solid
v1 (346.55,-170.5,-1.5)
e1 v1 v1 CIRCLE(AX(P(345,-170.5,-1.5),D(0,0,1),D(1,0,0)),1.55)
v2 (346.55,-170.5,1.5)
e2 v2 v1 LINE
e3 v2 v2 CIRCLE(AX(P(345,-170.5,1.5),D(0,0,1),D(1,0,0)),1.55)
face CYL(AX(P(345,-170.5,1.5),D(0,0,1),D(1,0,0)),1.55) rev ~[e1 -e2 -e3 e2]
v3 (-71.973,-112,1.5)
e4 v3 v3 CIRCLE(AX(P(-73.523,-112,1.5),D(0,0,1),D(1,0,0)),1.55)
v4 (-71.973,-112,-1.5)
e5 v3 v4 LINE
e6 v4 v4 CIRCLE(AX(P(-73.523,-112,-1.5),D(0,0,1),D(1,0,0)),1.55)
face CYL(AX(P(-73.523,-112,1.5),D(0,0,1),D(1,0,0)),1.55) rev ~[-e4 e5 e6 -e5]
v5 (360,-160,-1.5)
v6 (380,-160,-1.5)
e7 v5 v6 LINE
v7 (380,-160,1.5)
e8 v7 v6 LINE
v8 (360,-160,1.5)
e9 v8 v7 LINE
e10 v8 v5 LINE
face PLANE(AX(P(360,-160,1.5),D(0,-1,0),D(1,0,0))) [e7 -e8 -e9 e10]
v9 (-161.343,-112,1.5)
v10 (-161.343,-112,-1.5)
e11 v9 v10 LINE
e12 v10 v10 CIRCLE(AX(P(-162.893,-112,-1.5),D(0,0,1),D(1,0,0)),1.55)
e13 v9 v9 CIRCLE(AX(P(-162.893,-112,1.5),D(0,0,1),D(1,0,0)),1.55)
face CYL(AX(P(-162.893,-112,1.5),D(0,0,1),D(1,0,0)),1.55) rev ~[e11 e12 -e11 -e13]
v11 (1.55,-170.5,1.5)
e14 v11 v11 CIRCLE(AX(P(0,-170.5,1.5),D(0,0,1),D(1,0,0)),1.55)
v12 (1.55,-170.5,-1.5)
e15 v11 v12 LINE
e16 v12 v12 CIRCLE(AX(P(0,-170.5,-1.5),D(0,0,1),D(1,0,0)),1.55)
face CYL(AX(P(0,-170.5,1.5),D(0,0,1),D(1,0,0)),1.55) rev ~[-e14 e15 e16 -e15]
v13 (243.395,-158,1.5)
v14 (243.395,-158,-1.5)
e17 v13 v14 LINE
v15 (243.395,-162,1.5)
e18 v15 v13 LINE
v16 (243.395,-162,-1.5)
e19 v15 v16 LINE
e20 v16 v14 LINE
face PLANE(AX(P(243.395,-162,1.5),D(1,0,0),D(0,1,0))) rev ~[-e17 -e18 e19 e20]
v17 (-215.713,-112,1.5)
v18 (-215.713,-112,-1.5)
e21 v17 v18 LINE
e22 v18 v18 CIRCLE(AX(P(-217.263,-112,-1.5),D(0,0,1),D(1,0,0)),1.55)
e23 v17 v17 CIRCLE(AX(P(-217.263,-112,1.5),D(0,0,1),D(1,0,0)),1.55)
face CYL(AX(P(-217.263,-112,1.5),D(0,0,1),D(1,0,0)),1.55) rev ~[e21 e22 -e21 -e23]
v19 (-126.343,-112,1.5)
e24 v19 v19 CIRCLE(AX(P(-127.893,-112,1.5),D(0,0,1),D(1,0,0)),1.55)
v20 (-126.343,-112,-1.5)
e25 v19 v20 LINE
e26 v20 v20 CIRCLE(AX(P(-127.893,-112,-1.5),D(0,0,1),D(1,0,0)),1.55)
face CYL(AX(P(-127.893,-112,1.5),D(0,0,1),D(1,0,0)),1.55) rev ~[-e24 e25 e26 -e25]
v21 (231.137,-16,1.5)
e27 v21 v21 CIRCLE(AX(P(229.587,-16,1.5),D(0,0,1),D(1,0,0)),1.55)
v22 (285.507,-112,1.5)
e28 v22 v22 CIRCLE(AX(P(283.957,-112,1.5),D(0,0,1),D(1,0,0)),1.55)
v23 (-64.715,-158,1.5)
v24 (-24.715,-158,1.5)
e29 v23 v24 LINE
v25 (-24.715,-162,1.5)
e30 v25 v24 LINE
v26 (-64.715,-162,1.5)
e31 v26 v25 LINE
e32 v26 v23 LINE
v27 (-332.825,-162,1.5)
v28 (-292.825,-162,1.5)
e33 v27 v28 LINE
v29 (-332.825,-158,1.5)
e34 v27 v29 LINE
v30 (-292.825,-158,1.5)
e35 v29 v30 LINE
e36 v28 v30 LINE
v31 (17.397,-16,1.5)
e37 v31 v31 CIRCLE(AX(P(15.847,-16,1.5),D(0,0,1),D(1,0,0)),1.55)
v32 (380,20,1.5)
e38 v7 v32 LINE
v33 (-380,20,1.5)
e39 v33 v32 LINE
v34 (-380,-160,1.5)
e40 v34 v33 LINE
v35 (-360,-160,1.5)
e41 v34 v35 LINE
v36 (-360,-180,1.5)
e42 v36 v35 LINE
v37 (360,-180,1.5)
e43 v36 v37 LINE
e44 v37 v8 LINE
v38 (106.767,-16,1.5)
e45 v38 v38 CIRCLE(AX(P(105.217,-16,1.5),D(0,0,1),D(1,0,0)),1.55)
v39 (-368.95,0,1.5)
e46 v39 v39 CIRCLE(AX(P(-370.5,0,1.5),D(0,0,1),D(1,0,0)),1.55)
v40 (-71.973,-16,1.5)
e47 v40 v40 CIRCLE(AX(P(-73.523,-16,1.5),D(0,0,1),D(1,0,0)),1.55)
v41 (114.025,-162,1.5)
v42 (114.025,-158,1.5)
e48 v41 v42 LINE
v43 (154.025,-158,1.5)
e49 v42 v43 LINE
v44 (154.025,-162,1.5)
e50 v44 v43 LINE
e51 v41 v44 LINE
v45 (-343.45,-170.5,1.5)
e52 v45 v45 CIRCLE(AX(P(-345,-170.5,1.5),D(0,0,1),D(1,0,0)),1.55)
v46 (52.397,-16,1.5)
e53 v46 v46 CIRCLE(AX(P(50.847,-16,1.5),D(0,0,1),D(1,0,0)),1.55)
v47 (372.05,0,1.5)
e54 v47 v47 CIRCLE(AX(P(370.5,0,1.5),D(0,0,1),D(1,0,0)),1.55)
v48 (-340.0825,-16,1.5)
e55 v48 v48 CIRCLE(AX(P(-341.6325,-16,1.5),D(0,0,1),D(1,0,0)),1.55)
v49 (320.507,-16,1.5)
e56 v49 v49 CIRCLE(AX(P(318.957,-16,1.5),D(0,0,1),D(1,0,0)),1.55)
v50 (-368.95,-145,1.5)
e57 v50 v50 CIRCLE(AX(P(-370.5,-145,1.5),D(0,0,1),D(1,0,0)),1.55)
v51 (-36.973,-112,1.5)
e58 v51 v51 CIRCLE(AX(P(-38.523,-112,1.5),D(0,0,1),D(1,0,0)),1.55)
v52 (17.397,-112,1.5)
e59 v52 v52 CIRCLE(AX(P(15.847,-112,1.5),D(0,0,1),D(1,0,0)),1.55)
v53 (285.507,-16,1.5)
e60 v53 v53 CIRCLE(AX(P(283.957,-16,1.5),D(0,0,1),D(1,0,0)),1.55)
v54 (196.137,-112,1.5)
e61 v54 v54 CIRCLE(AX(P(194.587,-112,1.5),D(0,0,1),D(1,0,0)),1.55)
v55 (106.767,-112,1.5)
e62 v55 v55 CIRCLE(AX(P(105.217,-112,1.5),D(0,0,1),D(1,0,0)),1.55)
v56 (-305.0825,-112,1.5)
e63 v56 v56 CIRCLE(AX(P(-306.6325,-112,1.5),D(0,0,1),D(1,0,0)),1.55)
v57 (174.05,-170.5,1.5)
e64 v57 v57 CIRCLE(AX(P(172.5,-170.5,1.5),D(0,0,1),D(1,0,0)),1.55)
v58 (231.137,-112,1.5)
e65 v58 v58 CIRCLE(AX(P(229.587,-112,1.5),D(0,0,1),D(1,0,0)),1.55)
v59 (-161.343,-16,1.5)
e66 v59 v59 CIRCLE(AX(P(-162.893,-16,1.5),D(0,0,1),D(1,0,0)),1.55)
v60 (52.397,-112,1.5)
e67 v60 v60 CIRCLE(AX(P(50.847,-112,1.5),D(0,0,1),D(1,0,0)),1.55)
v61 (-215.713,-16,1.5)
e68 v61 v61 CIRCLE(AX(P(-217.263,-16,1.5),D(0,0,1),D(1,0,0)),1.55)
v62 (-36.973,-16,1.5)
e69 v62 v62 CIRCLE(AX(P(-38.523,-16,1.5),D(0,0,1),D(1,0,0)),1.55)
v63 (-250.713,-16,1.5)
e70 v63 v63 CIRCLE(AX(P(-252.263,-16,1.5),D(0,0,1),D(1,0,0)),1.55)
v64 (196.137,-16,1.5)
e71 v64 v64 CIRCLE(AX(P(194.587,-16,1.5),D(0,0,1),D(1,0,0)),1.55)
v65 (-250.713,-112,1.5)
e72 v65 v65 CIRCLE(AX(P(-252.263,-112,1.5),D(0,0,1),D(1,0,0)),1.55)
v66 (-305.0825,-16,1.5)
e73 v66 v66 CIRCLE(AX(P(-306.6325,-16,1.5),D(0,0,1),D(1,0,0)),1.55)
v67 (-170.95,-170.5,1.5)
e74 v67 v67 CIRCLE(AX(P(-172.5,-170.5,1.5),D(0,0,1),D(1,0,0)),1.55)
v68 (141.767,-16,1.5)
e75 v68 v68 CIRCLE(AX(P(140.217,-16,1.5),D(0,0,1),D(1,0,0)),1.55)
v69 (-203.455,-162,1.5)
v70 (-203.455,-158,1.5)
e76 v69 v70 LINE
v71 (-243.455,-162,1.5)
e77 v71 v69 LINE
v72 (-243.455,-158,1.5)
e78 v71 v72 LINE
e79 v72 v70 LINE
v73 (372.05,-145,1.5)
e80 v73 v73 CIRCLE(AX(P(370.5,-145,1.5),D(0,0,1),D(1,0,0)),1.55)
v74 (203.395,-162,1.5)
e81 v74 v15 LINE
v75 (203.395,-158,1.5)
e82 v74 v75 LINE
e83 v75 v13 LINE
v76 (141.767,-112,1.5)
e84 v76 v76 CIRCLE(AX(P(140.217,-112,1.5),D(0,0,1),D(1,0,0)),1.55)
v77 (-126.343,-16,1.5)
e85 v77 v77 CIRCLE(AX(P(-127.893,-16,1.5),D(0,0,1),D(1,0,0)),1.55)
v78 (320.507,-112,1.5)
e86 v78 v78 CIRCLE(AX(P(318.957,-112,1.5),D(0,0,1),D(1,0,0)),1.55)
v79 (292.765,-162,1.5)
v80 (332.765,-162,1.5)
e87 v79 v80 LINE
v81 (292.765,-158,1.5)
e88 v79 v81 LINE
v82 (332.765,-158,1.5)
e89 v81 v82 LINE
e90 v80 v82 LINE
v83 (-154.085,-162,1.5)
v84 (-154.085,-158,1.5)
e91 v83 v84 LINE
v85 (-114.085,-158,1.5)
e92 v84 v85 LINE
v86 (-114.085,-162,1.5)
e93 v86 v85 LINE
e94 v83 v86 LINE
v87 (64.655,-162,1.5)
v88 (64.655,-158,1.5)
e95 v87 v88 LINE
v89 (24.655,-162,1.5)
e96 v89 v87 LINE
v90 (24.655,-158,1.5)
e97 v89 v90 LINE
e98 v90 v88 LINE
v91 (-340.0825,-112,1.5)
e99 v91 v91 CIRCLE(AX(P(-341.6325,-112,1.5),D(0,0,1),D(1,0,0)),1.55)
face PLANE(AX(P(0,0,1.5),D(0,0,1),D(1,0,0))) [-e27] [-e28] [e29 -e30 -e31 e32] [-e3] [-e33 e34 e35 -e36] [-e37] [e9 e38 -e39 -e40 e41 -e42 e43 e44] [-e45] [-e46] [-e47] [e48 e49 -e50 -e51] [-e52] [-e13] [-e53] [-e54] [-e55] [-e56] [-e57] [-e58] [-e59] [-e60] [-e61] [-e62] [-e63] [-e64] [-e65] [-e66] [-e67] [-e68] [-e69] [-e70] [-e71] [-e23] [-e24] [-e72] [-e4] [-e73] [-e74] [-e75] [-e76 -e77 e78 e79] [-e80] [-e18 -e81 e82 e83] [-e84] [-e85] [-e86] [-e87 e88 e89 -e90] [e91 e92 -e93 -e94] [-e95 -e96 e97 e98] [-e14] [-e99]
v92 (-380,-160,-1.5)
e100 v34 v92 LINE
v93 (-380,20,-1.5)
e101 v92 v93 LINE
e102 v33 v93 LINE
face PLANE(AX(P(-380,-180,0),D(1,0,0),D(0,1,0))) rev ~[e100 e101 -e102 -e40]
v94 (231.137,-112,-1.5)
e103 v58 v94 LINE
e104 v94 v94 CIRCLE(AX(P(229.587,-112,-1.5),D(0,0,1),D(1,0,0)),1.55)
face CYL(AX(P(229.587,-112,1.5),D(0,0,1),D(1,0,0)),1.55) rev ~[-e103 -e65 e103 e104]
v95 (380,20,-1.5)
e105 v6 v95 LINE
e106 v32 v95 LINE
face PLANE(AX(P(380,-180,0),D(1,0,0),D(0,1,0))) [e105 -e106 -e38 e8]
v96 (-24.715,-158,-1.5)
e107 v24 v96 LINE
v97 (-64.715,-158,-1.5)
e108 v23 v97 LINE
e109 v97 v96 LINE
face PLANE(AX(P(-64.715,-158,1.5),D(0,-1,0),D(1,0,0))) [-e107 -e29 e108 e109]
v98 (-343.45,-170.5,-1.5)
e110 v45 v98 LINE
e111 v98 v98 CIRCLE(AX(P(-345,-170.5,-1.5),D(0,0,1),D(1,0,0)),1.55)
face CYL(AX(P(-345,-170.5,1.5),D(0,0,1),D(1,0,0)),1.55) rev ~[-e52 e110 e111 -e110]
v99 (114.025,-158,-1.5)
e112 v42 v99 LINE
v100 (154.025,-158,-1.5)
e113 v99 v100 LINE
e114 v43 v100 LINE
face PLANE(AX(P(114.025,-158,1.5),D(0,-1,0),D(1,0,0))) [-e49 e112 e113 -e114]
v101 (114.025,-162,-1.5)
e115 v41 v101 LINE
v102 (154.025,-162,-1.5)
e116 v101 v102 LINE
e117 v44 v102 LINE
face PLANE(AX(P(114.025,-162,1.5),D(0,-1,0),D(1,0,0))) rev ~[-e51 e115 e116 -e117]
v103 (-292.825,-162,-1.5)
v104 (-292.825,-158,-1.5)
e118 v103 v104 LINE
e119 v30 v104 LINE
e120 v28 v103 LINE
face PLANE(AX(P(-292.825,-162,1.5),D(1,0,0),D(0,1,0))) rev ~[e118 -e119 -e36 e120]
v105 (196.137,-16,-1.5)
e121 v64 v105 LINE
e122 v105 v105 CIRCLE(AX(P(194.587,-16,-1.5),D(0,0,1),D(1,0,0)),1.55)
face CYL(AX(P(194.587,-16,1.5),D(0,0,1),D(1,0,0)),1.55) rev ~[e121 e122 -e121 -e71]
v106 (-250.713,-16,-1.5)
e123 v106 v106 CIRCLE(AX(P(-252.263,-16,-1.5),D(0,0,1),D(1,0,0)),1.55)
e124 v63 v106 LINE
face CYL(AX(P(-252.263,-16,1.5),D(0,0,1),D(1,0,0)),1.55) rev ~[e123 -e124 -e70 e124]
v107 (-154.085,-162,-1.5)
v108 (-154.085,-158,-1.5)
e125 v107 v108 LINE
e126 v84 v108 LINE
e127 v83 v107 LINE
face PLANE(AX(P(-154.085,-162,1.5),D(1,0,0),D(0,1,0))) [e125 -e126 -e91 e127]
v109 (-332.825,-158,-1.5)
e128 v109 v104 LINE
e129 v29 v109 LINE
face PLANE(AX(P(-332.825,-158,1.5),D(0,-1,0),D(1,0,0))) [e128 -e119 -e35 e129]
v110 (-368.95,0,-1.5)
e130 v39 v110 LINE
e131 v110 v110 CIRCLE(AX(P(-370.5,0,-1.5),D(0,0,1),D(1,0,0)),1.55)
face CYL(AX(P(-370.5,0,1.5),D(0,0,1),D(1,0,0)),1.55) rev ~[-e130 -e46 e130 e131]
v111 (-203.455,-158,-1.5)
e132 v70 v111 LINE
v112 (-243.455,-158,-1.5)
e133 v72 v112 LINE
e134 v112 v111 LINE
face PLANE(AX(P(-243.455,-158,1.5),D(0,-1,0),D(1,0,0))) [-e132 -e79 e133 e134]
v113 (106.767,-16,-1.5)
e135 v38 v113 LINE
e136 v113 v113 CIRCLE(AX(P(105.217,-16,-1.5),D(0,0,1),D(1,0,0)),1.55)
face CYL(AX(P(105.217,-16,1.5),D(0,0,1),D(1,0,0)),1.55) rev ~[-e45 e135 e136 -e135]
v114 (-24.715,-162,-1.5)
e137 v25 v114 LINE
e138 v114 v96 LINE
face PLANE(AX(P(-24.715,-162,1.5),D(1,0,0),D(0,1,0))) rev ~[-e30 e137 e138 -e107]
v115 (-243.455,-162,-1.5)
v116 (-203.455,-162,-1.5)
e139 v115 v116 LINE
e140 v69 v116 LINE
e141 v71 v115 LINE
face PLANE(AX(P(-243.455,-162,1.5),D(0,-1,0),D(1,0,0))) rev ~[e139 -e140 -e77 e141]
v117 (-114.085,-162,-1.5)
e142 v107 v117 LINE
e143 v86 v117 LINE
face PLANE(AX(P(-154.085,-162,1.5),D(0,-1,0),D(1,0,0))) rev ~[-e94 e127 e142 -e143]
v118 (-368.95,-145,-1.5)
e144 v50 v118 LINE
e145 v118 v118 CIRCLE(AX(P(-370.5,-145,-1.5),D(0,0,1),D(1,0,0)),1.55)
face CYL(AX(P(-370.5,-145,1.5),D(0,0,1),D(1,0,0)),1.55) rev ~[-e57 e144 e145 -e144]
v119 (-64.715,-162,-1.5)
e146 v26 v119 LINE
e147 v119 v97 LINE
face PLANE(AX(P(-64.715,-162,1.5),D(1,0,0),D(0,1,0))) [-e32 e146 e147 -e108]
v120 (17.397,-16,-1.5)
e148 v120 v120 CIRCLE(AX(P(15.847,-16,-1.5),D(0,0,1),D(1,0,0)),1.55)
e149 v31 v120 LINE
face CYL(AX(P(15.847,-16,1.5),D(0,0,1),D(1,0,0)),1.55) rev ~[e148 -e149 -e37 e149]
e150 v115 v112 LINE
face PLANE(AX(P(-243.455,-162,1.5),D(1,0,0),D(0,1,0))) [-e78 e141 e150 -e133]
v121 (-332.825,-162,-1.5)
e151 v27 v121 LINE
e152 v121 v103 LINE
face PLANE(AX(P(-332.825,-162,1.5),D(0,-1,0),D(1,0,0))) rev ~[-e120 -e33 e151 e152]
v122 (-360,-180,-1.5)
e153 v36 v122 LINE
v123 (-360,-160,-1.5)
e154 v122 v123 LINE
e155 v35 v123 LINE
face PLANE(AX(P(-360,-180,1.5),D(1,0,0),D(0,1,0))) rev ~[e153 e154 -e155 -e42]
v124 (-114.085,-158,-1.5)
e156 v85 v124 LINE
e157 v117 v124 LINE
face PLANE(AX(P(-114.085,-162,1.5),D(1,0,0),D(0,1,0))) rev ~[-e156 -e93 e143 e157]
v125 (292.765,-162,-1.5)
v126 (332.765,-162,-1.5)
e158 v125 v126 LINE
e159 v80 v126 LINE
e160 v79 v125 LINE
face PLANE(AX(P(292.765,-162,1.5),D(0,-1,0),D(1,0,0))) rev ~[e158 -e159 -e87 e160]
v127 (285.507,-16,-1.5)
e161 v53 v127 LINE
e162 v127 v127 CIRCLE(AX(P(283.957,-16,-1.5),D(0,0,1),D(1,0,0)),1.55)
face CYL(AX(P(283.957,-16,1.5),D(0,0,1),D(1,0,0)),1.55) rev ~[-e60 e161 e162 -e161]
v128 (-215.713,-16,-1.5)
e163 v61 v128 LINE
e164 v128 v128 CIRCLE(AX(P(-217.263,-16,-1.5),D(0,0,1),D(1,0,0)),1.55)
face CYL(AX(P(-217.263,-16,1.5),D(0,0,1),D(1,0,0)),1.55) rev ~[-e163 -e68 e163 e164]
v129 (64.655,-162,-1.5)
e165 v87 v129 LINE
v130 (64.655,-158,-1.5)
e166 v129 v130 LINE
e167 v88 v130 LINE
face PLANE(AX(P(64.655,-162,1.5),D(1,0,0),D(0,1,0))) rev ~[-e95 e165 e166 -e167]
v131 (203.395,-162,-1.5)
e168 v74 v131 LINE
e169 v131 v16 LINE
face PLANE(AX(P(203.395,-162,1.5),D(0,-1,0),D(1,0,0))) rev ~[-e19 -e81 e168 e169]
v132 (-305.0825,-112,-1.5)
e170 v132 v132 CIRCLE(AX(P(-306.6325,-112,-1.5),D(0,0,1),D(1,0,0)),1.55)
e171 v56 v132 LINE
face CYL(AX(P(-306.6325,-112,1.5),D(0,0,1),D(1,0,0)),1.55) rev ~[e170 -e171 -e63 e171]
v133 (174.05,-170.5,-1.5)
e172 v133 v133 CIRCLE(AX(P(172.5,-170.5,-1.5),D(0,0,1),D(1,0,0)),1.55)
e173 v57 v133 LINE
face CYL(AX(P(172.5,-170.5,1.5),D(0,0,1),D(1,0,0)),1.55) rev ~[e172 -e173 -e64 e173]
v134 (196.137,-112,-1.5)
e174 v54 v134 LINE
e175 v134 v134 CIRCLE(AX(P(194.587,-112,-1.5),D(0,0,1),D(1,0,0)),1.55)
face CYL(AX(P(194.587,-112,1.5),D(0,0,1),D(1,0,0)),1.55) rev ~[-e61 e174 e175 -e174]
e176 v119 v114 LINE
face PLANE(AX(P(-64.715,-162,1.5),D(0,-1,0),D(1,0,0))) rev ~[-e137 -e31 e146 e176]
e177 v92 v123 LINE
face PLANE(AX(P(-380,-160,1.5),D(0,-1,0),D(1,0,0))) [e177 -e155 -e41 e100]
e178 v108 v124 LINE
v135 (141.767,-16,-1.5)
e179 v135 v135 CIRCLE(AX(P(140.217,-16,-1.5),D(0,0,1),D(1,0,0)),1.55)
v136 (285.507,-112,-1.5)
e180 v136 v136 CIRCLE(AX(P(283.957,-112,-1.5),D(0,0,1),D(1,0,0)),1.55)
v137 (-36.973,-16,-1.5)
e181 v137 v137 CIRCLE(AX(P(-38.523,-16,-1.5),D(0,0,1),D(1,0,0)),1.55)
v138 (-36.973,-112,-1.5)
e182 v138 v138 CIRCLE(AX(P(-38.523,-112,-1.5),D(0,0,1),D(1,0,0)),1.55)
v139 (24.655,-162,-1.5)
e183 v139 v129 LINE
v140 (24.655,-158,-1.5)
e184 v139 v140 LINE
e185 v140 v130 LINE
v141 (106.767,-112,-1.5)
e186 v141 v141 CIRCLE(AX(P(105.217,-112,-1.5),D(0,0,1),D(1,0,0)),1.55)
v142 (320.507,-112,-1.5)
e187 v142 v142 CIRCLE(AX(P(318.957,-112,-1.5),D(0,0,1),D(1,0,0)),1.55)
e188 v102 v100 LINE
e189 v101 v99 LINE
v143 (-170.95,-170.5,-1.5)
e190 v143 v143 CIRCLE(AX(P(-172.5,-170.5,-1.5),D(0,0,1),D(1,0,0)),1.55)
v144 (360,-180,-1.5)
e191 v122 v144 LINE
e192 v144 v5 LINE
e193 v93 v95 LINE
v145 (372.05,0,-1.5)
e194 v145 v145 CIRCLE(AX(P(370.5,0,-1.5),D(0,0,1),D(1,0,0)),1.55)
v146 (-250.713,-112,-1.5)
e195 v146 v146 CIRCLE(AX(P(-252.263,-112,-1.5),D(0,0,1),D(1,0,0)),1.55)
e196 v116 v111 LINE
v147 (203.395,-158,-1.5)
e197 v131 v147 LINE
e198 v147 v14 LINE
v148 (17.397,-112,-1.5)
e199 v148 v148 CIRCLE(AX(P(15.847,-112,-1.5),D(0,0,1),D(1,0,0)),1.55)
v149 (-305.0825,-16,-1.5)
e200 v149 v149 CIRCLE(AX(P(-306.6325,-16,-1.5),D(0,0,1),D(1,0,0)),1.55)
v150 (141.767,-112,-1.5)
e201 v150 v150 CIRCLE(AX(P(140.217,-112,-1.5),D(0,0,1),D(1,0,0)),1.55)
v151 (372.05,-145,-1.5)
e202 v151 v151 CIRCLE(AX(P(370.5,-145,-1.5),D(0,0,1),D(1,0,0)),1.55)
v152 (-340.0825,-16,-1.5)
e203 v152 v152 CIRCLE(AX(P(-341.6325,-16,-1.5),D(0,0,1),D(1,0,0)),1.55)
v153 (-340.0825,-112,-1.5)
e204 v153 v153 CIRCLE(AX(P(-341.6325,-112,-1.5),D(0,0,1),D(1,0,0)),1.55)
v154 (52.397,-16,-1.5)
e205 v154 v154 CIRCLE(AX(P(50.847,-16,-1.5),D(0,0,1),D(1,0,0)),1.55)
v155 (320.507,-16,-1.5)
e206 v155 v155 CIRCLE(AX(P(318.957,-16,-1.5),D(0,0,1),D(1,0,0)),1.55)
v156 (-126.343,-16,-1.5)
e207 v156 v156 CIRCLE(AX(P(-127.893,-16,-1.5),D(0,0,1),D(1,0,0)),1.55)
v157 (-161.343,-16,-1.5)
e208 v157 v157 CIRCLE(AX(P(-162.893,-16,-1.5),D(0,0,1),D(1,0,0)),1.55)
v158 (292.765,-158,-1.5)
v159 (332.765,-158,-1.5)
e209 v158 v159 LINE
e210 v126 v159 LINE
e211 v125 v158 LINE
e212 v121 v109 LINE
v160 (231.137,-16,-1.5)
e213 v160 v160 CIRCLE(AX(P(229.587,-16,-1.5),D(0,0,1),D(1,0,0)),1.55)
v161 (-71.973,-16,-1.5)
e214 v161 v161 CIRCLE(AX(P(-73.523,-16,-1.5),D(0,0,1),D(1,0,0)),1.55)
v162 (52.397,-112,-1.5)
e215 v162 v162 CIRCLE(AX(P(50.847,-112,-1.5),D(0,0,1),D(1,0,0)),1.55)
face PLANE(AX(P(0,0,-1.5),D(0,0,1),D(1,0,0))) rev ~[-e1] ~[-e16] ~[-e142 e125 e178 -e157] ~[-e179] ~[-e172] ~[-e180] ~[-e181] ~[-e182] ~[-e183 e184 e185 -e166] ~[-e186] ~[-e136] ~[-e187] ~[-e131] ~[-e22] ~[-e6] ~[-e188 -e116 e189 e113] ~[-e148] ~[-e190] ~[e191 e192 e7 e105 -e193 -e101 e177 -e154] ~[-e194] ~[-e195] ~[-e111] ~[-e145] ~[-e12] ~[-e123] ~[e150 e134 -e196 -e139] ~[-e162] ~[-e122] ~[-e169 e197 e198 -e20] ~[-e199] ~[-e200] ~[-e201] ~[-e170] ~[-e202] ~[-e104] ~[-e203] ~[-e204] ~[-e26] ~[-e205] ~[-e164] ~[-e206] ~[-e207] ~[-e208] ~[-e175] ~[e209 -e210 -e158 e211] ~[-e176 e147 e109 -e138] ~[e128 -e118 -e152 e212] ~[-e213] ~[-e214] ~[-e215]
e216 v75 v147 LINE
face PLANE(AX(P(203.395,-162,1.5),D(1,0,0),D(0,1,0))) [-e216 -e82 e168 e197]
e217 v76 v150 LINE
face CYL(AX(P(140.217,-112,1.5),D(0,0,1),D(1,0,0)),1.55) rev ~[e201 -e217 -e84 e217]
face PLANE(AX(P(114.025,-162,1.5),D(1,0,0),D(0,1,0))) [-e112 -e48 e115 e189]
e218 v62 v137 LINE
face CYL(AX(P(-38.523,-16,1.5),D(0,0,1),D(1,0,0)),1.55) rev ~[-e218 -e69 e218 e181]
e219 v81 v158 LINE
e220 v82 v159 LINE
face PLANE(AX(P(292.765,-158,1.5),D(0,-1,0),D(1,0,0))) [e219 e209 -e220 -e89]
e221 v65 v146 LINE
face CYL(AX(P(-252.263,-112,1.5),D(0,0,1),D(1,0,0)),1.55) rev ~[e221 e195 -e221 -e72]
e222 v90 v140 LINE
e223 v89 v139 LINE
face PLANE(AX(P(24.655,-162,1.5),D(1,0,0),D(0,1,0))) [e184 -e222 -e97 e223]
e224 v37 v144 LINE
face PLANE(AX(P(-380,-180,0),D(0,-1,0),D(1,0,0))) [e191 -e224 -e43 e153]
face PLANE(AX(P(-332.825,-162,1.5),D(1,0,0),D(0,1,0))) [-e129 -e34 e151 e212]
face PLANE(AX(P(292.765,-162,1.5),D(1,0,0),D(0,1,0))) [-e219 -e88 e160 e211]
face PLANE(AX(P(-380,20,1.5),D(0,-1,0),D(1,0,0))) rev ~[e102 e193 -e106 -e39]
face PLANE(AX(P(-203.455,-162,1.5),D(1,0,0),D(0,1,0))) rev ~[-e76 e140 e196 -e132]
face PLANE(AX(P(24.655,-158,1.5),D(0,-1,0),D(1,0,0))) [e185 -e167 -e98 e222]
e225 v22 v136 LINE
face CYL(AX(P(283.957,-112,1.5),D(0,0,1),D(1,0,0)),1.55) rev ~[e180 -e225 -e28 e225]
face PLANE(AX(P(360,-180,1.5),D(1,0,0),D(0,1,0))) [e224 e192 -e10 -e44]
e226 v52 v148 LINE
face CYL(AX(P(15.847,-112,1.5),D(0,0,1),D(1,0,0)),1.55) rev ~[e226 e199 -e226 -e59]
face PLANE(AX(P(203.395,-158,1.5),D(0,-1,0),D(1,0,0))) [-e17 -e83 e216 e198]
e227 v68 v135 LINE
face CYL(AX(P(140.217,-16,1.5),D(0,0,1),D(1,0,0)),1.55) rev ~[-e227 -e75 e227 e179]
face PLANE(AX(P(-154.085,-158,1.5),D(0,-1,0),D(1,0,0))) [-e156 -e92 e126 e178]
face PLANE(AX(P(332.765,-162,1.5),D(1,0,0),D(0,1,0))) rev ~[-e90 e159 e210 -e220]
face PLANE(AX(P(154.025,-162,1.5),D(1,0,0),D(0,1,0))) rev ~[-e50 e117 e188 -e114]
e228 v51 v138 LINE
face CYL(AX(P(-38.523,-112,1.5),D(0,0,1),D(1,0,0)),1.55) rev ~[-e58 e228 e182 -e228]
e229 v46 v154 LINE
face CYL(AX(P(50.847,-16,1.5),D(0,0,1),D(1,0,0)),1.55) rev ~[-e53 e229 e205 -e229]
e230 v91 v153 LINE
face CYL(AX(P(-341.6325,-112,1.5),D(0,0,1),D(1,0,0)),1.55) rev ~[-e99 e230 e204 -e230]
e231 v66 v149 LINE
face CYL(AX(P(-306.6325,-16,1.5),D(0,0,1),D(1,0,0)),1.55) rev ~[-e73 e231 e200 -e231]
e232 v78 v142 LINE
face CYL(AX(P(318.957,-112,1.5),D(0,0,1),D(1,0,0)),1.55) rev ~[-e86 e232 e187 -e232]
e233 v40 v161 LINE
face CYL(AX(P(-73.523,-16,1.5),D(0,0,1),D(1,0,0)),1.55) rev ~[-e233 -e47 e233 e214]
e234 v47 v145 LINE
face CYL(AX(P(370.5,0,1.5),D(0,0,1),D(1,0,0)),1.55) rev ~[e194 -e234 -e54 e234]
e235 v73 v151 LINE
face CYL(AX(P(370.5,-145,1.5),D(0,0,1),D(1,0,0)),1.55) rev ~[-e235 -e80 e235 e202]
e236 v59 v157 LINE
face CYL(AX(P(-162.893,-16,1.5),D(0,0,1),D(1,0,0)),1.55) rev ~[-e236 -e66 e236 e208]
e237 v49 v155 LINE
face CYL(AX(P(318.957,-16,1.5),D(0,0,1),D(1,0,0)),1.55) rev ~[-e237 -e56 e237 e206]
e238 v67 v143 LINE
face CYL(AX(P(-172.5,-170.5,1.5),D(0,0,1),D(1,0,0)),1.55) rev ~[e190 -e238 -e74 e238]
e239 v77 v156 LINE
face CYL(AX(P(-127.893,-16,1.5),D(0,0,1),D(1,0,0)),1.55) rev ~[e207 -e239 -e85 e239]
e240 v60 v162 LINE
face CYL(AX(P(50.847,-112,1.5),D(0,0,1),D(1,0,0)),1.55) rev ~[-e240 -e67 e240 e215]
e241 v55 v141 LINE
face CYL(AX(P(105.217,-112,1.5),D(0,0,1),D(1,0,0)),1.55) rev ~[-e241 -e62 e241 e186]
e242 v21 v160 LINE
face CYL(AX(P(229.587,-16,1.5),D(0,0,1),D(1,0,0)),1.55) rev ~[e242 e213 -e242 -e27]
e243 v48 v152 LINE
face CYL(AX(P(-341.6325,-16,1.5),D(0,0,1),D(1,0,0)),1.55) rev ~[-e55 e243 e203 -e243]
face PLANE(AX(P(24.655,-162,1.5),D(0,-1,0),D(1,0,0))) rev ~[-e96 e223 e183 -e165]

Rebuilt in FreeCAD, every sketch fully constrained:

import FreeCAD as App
import Part
import Sketcher
from FreeCAD import Vector


def add_polygon(sketch, points):
    """Adds a closed chain of lines whose ends are joined by coincident constraints."""
    first, n = sketch.GeometryCount, len(points)
    for a, b in zip(points, points[1:] + points[:1]):
        sketch.addGeometry(Part.LineSegment(App.Vector(*a, 0), App.Vector(*b, 0)), False)
    for i in range(n):
        sketch.addConstraint(Sketcher.Constraint("Coincident", first + i, 2, first + (i + 1) % n, 1))

doc = App.newDocument("Part")
body = doc.addObject("PartDesign::Body", "Body")

sketch1 = body.newObject("Sketcher::SketchObject", "Sketch")
sketch1.AttachmentSupport = (doc.getObject("XY_Plane"), [""])
sketch1.MapMode = "FlatFace"
add_polygon(sketch1, [(-380, 180), (-380, -180), (380, -180), (380, 180)])
sketch1.addConstraint([
    Sketcher.Constraint("Vertical", 0),
    Sketcher.Constraint("Horizontal", 1),
    Sketcher.Constraint("Vertical", 2),
    Sketcher.Constraint("Horizontal", 3),
    Sketcher.Constraint("Symmetric", 0, 2, 2, 2, -1, 1),
    Sketcher.Constraint("DistanceX", 1, 1, 1, 2, 760.0),
    Sketcher.Constraint("DistanceY", 0, 2, 0, 1, 360.0),
])
pad1 = body.newObject("PartDesign::Pad", "Pad")
pad1.Profile = sketch1
pad1.Length = 3
pad1.Midplane = True

sketch2 = body.newObject("Sketcher::SketchObject", "Sketch001")
sketch2.AttachmentSupport = (doc.getObject("XY_Plane"), [""])
sketch2.MapMode = "FlatFace"
sketch2.AttachmentOffset = App.Placement(Vector(0, 0, 1.5), App.Rotation())
add_polygon(sketch2, [(-380, -160), (-380, -180), (-360, -180), (-360, -160)])
add_polygon(sketch2, [(-380, 180), (-380, 160), (-360, 160), (-360, 180)])
add_polygon(sketch2, [(360, -160), (360, -180), (380, -180), (380, -160)])
add_polygon(sketch2, [(360, 180), (360, 160), (380, 160), (380, 180)])
sketch2.addConstraint([
    Sketcher.Constraint("Vertical", 0),
    Sketcher.Constraint("Horizontal", 1),
    Sketcher.Constraint("Vertical", 2),
    Sketcher.Constraint("Horizontal", 3),
    Sketcher.Constraint("Vertical", 4),
    Sketcher.Constraint("Horizontal", 5),
    Sketcher.Constraint("Vertical", 6),
    Sketcher.Constraint("Horizontal", 7),
    Sketcher.Constraint("Vertical", 8),
    Sketcher.Constraint("Horizontal", 9),
    Sketcher.Constraint("Vertical", 10),
    Sketcher.Constraint("Horizontal", 11),
    Sketcher.Constraint("Vertical", 12),
    Sketcher.Constraint("Horizontal", 13),
    Sketcher.Constraint("Vertical", 14),
    Sketcher.Constraint("Horizontal", 15),
    Sketcher.Constraint("Symmetric", 6, 2, 8, 2, -1, 1),
    Sketcher.Constraint("Symmetric", 4, 2, 10, 2, -1, 1),
    Sketcher.Constraint("Symmetric", 2, 2, 12, 2, -1, 1),
    Sketcher.Constraint("Symmetric", 0, 2, 14, 2, -1, 1),
    Sketcher.Constraint("Symmetric", 1, 2, 8, 2, -2),
    Sketcher.Constraint("Symmetric", 3, 2, 10, 2, -2),
    Sketcher.Constraint("Equal", 15, 0),
    Sketcher.Constraint("DistanceX", 1, 1, 1, 2, 20.0),
    Sketcher.Constraint("DistanceX", 0, 2, -1, 1, 380.0),
    Sketcher.Constraint("DistanceY", 0, 2, -1, 1, 180.0),
])
pocket1 = body.newObject("PartDesign::Pocket", "Pocket")
pocket1.Profile = sketch2
pocket1.Type = "ThroughAll"

sketch3 = body.newObject("Sketcher::SketchObject", "Sketch002")
sketch3.AttachmentSupport = (doc.getObject("XY_Plane"), [""])
sketch3.MapMode = "FlatFace"
sketch3.AttachmentOffset = App.Placement(Vector(0, 0, 1.5), App.Rotation())
sketch3.addGeometry([
    Part.Circle(Vector(-370.5, 145, 0), Vector(0, 0, 1), 1.55),
    Part.Circle(Vector(-370.5, 0, 0), Vector(0, 0, 1), 1.55),
    Part.Circle(Vector(-370.5, -145, 0), Vector(0, 0, 1), 1.55),
    Part.Circle(Vector(370.5, -145, 0), Vector(0, 0, 1), 1.55),
    Part.Circle(Vector(370.5, 0, 0), Vector(0, 0, 1), 1.55),
    Part.Circle(Vector(370.5, 145, 0), Vector(0, 0, 1), 1.55),
    Part.Circle(Vector(0, 170.5, 0), Vector(0, 0, 1), 1.55),
    Part.Circle(Vector(172.5, 170.5, 0), Vector(0, 0, 1), 1.55),
    Part.Circle(Vector(345, 170.5, 0), Vector(0, 0, 1), 1.55),
    Part.Circle(Vector(-172.5, 170.5, 0), Vector(0, 0, 1), 1.55),
    Part.Circle(Vector(-345, 170.5, 0), Vector(0, 0, 1), 1.55),
    Part.Circle(Vector(-345, -170.5, 0), Vector(0, 0, 1), 1.55),
    Part.Circle(Vector(-172.5, -170.5, 0), Vector(0, 0, 1), 1.55),
    Part.Circle(Vector(0, -170.5, 0), Vector(0, 0, 1), 1.55),
    Part.Circle(Vector(172.5, -170.5, 0), Vector(0, 0, 1), 1.55),
    Part.Circle(Vector(345, -170.5, 0), Vector(0, 0, 1), 1.55),
], False)
sketch3.addConstraint([
    Sketcher.Constraint("Equal", 0, 1),
    Sketcher.Constraint("Equal", 1, 2),
    Sketcher.Constraint("Equal", 2, 3),
    Sketcher.Constraint("Equal", 3, 4),
    Sketcher.Constraint("Equal", 4, 5),
    Sketcher.Constraint("Equal", 5, 6),
    Sketcher.Constraint("Equal", 6, 7),
    Sketcher.Constraint("Equal", 7, 8),
    Sketcher.Constraint("Equal", 8, 9),
    Sketcher.Constraint("Equal", 9, 10),
    Sketcher.Constraint("Equal", 10, 11),
    Sketcher.Constraint("Equal", 11, 12),
    Sketcher.Constraint("Equal", 12, 13),
    Sketcher.Constraint("Equal", 13, 14),
    Sketcher.Constraint("Equal", 14, 15),
    Sketcher.Constraint("Symmetric", 0, 3, 3, 3, -1, 1),
    Sketcher.Constraint("Symmetric", 1, 3, 4, 3, -1, 1),
    Sketcher.Constraint("Symmetric", 2, 3, 5, 3, -1, 1),
    Sketcher.Constraint("Symmetric", 8, 3, 11, 3, -1, 1),
    Sketcher.Constraint("Symmetric", 7, 3, 12, 3, -1, 1),
    Sketcher.Constraint("Symmetric", 6, 3, 13, 3, -1, 1),
    Sketcher.Constraint("Symmetric", 9, 3, 14, 3, -1, 1),
    Sketcher.Constraint("Symmetric", 10, 3, 15, 3, -1, 1),
    Sketcher.Constraint("Symmetric", 2, 3, 3, 3, -2),
    Sketcher.Constraint("Symmetric", 7, 3, 9, 3, -2),
    Sketcher.Constraint("Symmetric", 8, 3, 10, 3, -2),
    Sketcher.Constraint("PointOnObject", 1, 3, -1),
    Sketcher.Constraint("PointOnObject", 6, 3, -2),
    Sketcher.Constraint("Horizontal", 6, 3, 7, 3),
    Sketcher.Constraint("Horizontal", 7, 3, 8, 3),
    Sketcher.Constraint("Vertical", 0, 3, 1, 3),
    Sketcher.Constraint("Diameter", 0, 3.1),
    Sketcher.Constraint("DistanceY", -1, 1, 0, 3, 145.0),
    Sketcher.Constraint("DistanceX", -1, 1, 8, 3, 345.0),
    Sketcher.Constraint("DistanceX", 2, 3, 3, 3, 741.0),
    Sketcher.Constraint("DistanceX", 7, 3, 5, 3, 198.0),
    Sketcher.Constraint("DistanceY", 11, 3, 10, 3, 341.0),
])
pocket2 = body.newObject("PartDesign::Pocket", "Pocket001")
pocket2.Profile = sketch3
pocket2.Type = "ThroughAll"

sketch4 = body.newObject("Sketcher::SketchObject", "Sketch003")
sketch4.AttachmentSupport = (doc.getObject("XY_Plane"), [""])
sketch4.MapMode = "FlatFace"
sketch4.AttachmentOffset = App.Placement(Vector(0, 0, 1.5), App.Rotation())
add_polygon(sketch4, [(-259.763, 120), (-259.763, 100), (-209.763, 100), (-209.763, 120)])
add_polygon(sketch4, [(-168.659, 120), (-168.659, 100), (-118.659, 100), (-118.659, 120)])
add_polygon(sketch4, [(-77.555, 120), (-77.555, 100), (-27.555, 100), (-27.555, 120)])
add_polygon(sketch4, [(100, 120), (100, 100), (150, 100), (150, 120)])
add_polygon(sketch4, [(200, 120), (200, 100), (250, 100), (250, 120)])
add_polygon(sketch4, [(300, 120), (300, 100), (350, 100), (350, 120)])
add_polygon(sketch4, [(-5, 120), (-5, 100), (45, 100), (45, 120)])
add_polygon(sketch4, [(-350.867, 120), (-350.867, 100), (-300.867, 100), (-300.867, 120)])
sketch4.addConstraint([
    Sketcher.Constraint("Vertical", 0),
    Sketcher.Constraint("Horizontal", 1),
    Sketcher.Constraint("Vertical", 2),
    Sketcher.Constraint("Horizontal", 3),
    Sketcher.Constraint("Vertical", 4),
    Sketcher.Constraint("Horizontal", 5),
    Sketcher.Constraint("Vertical", 6),
    Sketcher.Constraint("Horizontal", 7),
    Sketcher.Constraint("Vertical", 8),
    Sketcher.Constraint("Horizontal", 9),
    Sketcher.Constraint("Vertical", 10),
    Sketcher.Constraint("Horizontal", 11),
    Sketcher.Constraint("Vertical", 12),
    Sketcher.Constraint("Horizontal", 13),
    Sketcher.Constraint("Vertical", 14),
    Sketcher.Constraint("Horizontal", 15),
    Sketcher.Constraint("Vertical", 16),
    Sketcher.Constraint("Horizontal", 17),
    Sketcher.Constraint("Vertical", 18),
    Sketcher.Constraint("Horizontal", 19),
    Sketcher.Constraint("Vertical", 20),
    Sketcher.Constraint("Horizontal", 21),
    Sketcher.Constraint("Vertical", 22),
    Sketcher.Constraint("Horizontal", 23),
    Sketcher.Constraint("Vertical", 24),
    Sketcher.Constraint("Horizontal", 25),
    Sketcher.Constraint("Vertical", 26),
    Sketcher.Constraint("Horizontal", 27),
    Sketcher.Constraint("Vertical", 28),
    Sketcher.Constraint("Horizontal", 29),
    Sketcher.Constraint("Vertical", 30),
    Sketcher.Constraint("Horizontal", 31),
    Sketcher.Constraint("Horizontal", 1, 2, 4, 2),
    Sketcher.Constraint("Horizontal", 3, 2, 6, 2),
    Sketcher.Constraint("Horizontal", 5, 2, 8, 2),
    Sketcher.Constraint("Horizontal", 7, 2, 10, 2),
    Sketcher.Constraint("Horizontal", 9, 2, 12, 2),
    Sketcher.Constraint("Horizontal", 11, 2, 14, 2),
    Sketcher.Constraint("Horizontal", 13, 2, 16, 2),
    Sketcher.Constraint("Horizontal", 15, 2, 18, 2),
    Sketcher.Constraint("Horizontal", 17, 2, 20, 2),
    Sketcher.Constraint("Horizontal", 19, 2, 22, 2),
    Sketcher.Constraint("Horizontal", 21, 2, 24, 2),
    Sketcher.Constraint("Horizontal", 23, 2, 26, 2),
    Sketcher.Constraint("Horizontal", 25, 2, 28, 2),
    Sketcher.Constraint("Horizontal", 27, 2, 30, 2),
    Sketcher.Constraint("Equal", 3, 5),
    Sketcher.Constraint("Equal", 7, 9),
    Sketcher.Constraint("Equal", 11, 13),
    Sketcher.Constraint("Equal", 15, 17),
    Sketcher.Constraint("Equal", 19, 21),
    Sketcher.Constraint("Equal", 23, 25),
    Sketcher.Constraint("Equal", 27, 29),
    Sketcher.Constraint("DistanceX", 1, 1, 1, 2, 50.0),
    Sketcher.Constraint("DistanceY", 0, 2, 0, 1, 20.0),
    Sketcher.Constraint("DistanceY", -1, 1, 0, 2, 100.0),
    Sketcher.Constraint("DistanceX", -1, 1, 12, 2, 100.0),
    Sketcher.Constraint("DistanceX", -1, 1, 16, 2, 200.0),
    Sketcher.Constraint("DistanceX", -1, 1, 20, 2, 300.0),
    Sketcher.Constraint("DistanceX", 24, 2, -1, 1, 5.0),
    Sketcher.Constraint("DistanceX", 0, 2, -1, 1, 259.763),
    Sketcher.Constraint("DistanceX", 4, 2, -1, 1, 168.659),
    Sketcher.Constraint("DistanceX", 8, 2, -1, 1, 77.555),
    Sketcher.Constraint("DistanceX", 28, 2, -1, 1, 350.867),
])
pocket3 = body.newObject("PartDesign::Pocket", "Pocket002")
pocket3.Profile = sketch4
pocket3.Type = "ThroughAll"

sketch5 = body.newObject("Sketcher::SketchObject", "Sketch004")
sketch5.AttachmentSupport = (doc.getObject("XY_Plane"), [""])
sketch5.MapMode = "FlatFace"
sketch5.AttachmentOffset = App.Placement(Vector(0, 0, 1.5), App.Rotation())
sketch5.addGeometry([
    Part.Circle(Vector(-341.6325, -16, 0), Vector(0, 0, 1), 1.55),
    Part.Circle(Vector(-306.6325, -16, 0), Vector(0, 0, 1), 1.55),
    Part.Circle(Vector(-341.6325, -112, 0), Vector(0, 0, 1), 1.55),
    Part.Circle(Vector(-306.6325, -112, 0), Vector(0, 0, 1), 1.55),
    Part.Circle(Vector(-252.263, -112, 0), Vector(0, 0, 1), 1.55),
    Part.Circle(Vector(-217.263, -112, 0), Vector(0, 0, 1), 1.55),
    Part.Circle(Vector(-252.263, -16, 0), Vector(0, 0, 1), 1.55),
    Part.Circle(Vector(-217.263, -16, 0), Vector(0, 0, 1), 1.55),
    Part.Circle(Vector(-162.893, -16, 0), Vector(0, 0, 1), 1.55),
    Part.Circle(Vector(-127.893, -16, 0), Vector(0, 0, 1), 1.55),
    Part.Circle(Vector(-162.893, -112, 0), Vector(0, 0, 1), 1.55),
    Part.Circle(Vector(-127.893, -112, 0), Vector(0, 0, 1), 1.55),
    Part.Circle(Vector(-73.523, -112, 0), Vector(0, 0, 1), 1.55),
    Part.Circle(Vector(-38.523, -112, 0), Vector(0, 0, 1), 1.55),
    Part.Circle(Vector(-73.523, -16, 0), Vector(0, 0, 1), 1.55),
    Part.Circle(Vector(-38.523, -16, 0), Vector(0, 0, 1), 1.55),
    Part.Circle(Vector(15.847, -16, 0), Vector(0, 0, 1), 1.55),
    Part.Circle(Vector(50.847, -16, 0), Vector(0, 0, 1), 1.55),
    Part.Circle(Vector(15.847, -112, 0), Vector(0, 0, 1), 1.55),
    Part.Circle(Vector(50.847, -112, 0), Vector(0, 0, 1), 1.55),
    Part.Circle(Vector(105.217, -112, 0), Vector(0, 0, 1), 1.55),
    Part.Circle(Vector(140.217, -112, 0), Vector(0, 0, 1), 1.55),
    Part.Circle(Vector(105.217, -16, 0), Vector(0, 0, 1), 1.55),
    Part.Circle(Vector(140.217, -16, 0), Vector(0, 0, 1), 1.55),
    Part.Circle(Vector(194.587, -16, 0), Vector(0, 0, 1), 1.55),
    Part.Circle(Vector(229.587, -16, 0), Vector(0, 0, 1), 1.55),
    Part.Circle(Vector(194.587, -112, 0), Vector(0, 0, 1), 1.55),
    Part.Circle(Vector(229.587, -112, 0), Vector(0, 0, 1), 1.55),
    Part.Circle(Vector(283.957, -112, 0), Vector(0, 0, 1), 1.55),
    Part.Circle(Vector(318.957, -112, 0), Vector(0, 0, 1), 1.55),
    Part.Circle(Vector(283.957, -16, 0), Vector(0, 0, 1), 1.55),
    Part.Circle(Vector(318.957, -16, 0), Vector(0, 0, 1), 1.55),
], False)
sketch5.addConstraint([
    Sketcher.Constraint("Equal", 0, 1),
    Sketcher.Constraint("Equal", 1, 2),
    Sketcher.Constraint("Equal", 2, 3),
    Sketcher.Constraint("Equal", 3, 4),
    Sketcher.Constraint("Equal", 4, 5),
    Sketcher.Constraint("Equal", 5, 6),
    Sketcher.Constraint("Equal", 6, 7),
    Sketcher.Constraint("Equal", 7, 8),
    Sketcher.Constraint("Equal", 8, 9),
    Sketcher.Constraint("Equal", 9, 10),
    Sketcher.Constraint("Equal", 10, 11),
    Sketcher.Constraint("Equal", 11, 12),
    Sketcher.Constraint("Equal", 12, 13),
    Sketcher.Constraint("Equal", 13, 14),
    Sketcher.Constraint("Equal", 14, 15),
    Sketcher.Constraint("Equal", 15, 16),
    Sketcher.Constraint("Equal", 16, 17),
    Sketcher.Constraint("Equal", 17, 18),
    Sketcher.Constraint("Equal", 18, 19),
    Sketcher.Constraint("Equal", 19, 20),
    Sketcher.Constraint("Equal", 20, 21),
    Sketcher.Constraint("Equal", 21, 22),
    Sketcher.Constraint("Equal", 22, 23),
    Sketcher.Constraint("Equal", 23, 24),
    Sketcher.Constraint("Equal", 24, 25),
    Sketcher.Constraint("Equal", 25, 26),
    Sketcher.Constraint("Equal", 26, 27),
    Sketcher.Constraint("Equal", 27, 28),
    Sketcher.Constraint("Equal", 28, 29),
    Sketcher.Constraint("Equal", 29, 30),
    Sketcher.Constraint("Equal", 30, 31),
    Sketcher.Constraint("Horizontal", 0, 3, 1, 3),
    Sketcher.Constraint("Horizontal", 2, 3, 3, 3),
    Sketcher.Constraint("Horizontal", 3, 3, 4, 3),
    Sketcher.Constraint("Horizontal", 4, 3, 5, 3),
    Sketcher.Constraint("Horizontal", 1, 3, 6, 3),
    Sketcher.Constraint("Horizontal", 6, 3, 7, 3),
    Sketcher.Constraint("Horizontal", 7, 3, 8, 3),
    Sketcher.Constraint("Horizontal", 8, 3, 9, 3),
    Sketcher.Constraint("Horizontal", 5, 3, 10, 3),
    Sketcher.Constraint("Horizontal", 10, 3, 11, 3),
    Sketcher.Constraint("Horizontal", 11, 3, 12, 3),
    Sketcher.Constraint("Horizontal", 12, 3, 13, 3),
    Sketcher.Constraint("Horizontal", 9, 3, 14, 3),
    Sketcher.Constraint("Horizontal", 14, 3, 15, 3),
    Sketcher.Constraint("Horizontal", 15, 3, 16, 3),
    Sketcher.Constraint("Horizontal", 16, 3, 17, 3),
    Sketcher.Constraint("Horizontal", 13, 3, 18, 3),
    Sketcher.Constraint("Horizontal", 18, 3, 19, 3),
    Sketcher.Constraint("Horizontal", 19, 3, 20, 3),
    Sketcher.Constraint("Horizontal", 20, 3, 21, 3),
    Sketcher.Constraint("Horizontal", 17, 3, 22, 3),
    Sketcher.Constraint("Horizontal", 22, 3, 23, 3),
    Sketcher.Constraint("Horizontal", 23, 3, 24, 3),
    Sketcher.Constraint("Horizontal", 24, 3, 25, 3),
    Sketcher.Constraint("Horizontal", 21, 3, 26, 3),
    Sketcher.Constraint("Horizontal", 26, 3, 27, 3),
    Sketcher.Constraint("Horizontal", 27, 3, 28, 3),
    Sketcher.Constraint("Horizontal", 28, 3, 29, 3),
    Sketcher.Constraint("Horizontal", 25, 3, 30, 3),
    Sketcher.Constraint("Horizontal", 30, 3, 31, 3),
    Sketcher.Constraint("Vertical", 0, 3, 2, 3),
    Sketcher.Constraint("Vertical", 1, 3, 3, 3),
    Sketcher.Constraint("Vertical", 4, 3, 6, 3),
    Sketcher.Constraint("Vertical", 5, 3, 7, 3),
    Sketcher.Constraint("Vertical", 8, 3, 10, 3),
    Sketcher.Constraint("Vertical", 9, 3, 11, 3),
    Sketcher.Constraint("Vertical", 12, 3, 14, 3),
    Sketcher.Constraint("Vertical", 13, 3, 15, 3),
    Sketcher.Constraint("Vertical", 16, 3, 18, 3),
    Sketcher.Constraint("Vertical", 17, 3, 19, 3),
    Sketcher.Constraint("Vertical", 20, 3, 22, 3),
    Sketcher.Constraint("Vertical", 21, 3, 23, 3),
    Sketcher.Constraint("Vertical", 24, 3, 26, 3),
    Sketcher.Constraint("Vertical", 25, 3, 27, 3),
    Sketcher.Constraint("Vertical", 28, 3, 30, 3),
    Sketcher.Constraint("Vertical", 29, 3, 31, 3),
    Sketcher.Constraint("Diameter", 0, 3.1),
    Sketcher.Constraint("DistanceY", 0, 3, -1, 1, 16.0),
    Sketcher.Constraint("DistanceY", 2, 3, -1, 1, 112.0),
    Sketcher.Constraint("DistanceX", 0, 3, 1, 3, 35.0),
    Sketcher.Constraint("DistanceX", 4, 3, 5, 3, 35.0),
    Sketcher.Constraint("DistanceX", 8, 3, 9, 3, 35.0),
    Sketcher.Constraint("DistanceX", 12, 3, 13, 3, 35.0),
    Sketcher.Constraint("DistanceX", 16, 3, 17, 3, 35.0),
    Sketcher.Constraint("DistanceX", 20, 3, 21, 3, 35.0),
    Sketcher.Constraint("DistanceX", 24, 3, 25, 3, 35.0),
    Sketcher.Constraint("DistanceX", 28, 3, 29, 3, 35.0),
    Sketcher.Constraint("DistanceX", 7, 3, 8, 3, 54.37),
    Sketcher.Constraint("DistanceX", 11, 3, 12, 3, 54.37),
    Sketcher.Constraint("DistanceX", 15, 3, 16, 3, 54.37),
    Sketcher.Constraint("DistanceX", 19, 3, 20, 3, 54.37),
    Sketcher.Constraint("DistanceX", 23, 3, 24, 3, 54.37),
    Sketcher.Constraint("DistanceX", 27, 3, 28, 3, 54.37),
    Sketcher.Constraint("DistanceX", 4, 3, -1, 1, 252.263),
    Sketcher.Constraint("DistanceX", 0, 3, -1, 1, 341.6325),
])
pocket4 = body.newObject("PartDesign::Pocket", "Pocket003")
pocket4.Profile = sketch5
pocket4.Type = "ThroughAll"

sketch6 = body.newObject("Sketcher::SketchObject", "Sketch005")
sketch6.AttachmentSupport = (doc.getObject("XY_Plane"), [""])
sketch6.MapMode = "FlatFace"
sketch6.AttachmentOffset = App.Placement(Vector(0, 0, 1.5), App.Rotation())
add_polygon(sketch6, [(-332.825, -158), (-332.825, -162), (-292.825, -162), (-292.825, -158)])
add_polygon(sketch6, [(-243.455, -158), (-243.455, -162), (-203.455, -162), (-203.455, -158)])
add_polygon(sketch6, [(-154.085, -158), (-154.085, -162), (-114.085, -162), (-114.085, -158)])
add_polygon(sketch6, [(-64.715, -158), (-64.715, -162), (-24.715, -162), (-24.715, -158)])
add_polygon(sketch6, [(24.655, -158), (24.655, -162), (64.655, -162), (64.655, -158)])
add_polygon(sketch6, [(114.025, -158), (114.025, -162), (154.025, -162), (154.025, -158)])
add_polygon(sketch6, [(203.395, -158), (203.395, -162), (243.395, -162), (243.395, -158)])
add_polygon(sketch6, [(292.765, -158), (292.765, -162), (332.765, -162), (332.765, -158)])
sketch6.addConstraint([
    Sketcher.Constraint("Vertical", 0),
    Sketcher.Constraint("Horizontal", 1),
    Sketcher.Constraint("Vertical", 2),
    Sketcher.Constraint("Horizontal", 3),
    Sketcher.Constraint("Vertical", 4),
    Sketcher.Constraint("Horizontal", 5),
    Sketcher.Constraint("Vertical", 6),
    Sketcher.Constraint("Horizontal", 7),
    Sketcher.Constraint("Vertical", 8),
    Sketcher.Constraint("Horizontal", 9),
    Sketcher.Constraint("Vertical", 10),
    Sketcher.Constraint("Horizontal", 11),
    Sketcher.Constraint("Vertical", 12),
    Sketcher.Constraint("Horizontal", 13),
    Sketcher.Constraint("Vertical", 14),
    Sketcher.Constraint("Horizontal", 15),
    Sketcher.Constraint("Vertical", 16),
    Sketcher.Constraint("Horizontal", 17),
    Sketcher.Constraint("Vertical", 18),
    Sketcher.Constraint("Horizontal", 19),
    Sketcher.Constraint("Vertical", 20),
    Sketcher.Constraint("Horizontal", 21),
    Sketcher.Constraint("Vertical", 22),
    Sketcher.Constraint("Horizontal", 23),
    Sketcher.Constraint("Vertical", 24),
    Sketcher.Constraint("Horizontal", 25),
    Sketcher.Constraint("Vertical", 26),
    Sketcher.Constraint("Horizontal", 27),
    Sketcher.Constraint("Vertical", 28),
    Sketcher.Constraint("Horizontal", 29),
    Sketcher.Constraint("Vertical", 30),
    Sketcher.Constraint("Horizontal", 31),
    Sketcher.Constraint("Horizontal", 1, 2, 4, 2),
    Sketcher.Constraint("Horizontal", 3, 2, 6, 2),
    Sketcher.Constraint("Horizontal", 5, 2, 8, 2),
    Sketcher.Constraint("Horizontal", 7, 2, 10, 2),
    Sketcher.Constraint("Horizontal", 9, 2, 12, 2),
    Sketcher.Constraint("Horizontal", 11, 2, 14, 2),
    Sketcher.Constraint("Horizontal", 13, 2, 16, 2),
    Sketcher.Constraint("Horizontal", 15, 2, 18, 2),
    Sketcher.Constraint("Horizontal", 17, 2, 20, 2),
    Sketcher.Constraint("Horizontal", 19, 2, 22, 2),
    Sketcher.Constraint("Horizontal", 21, 2, 24, 2),
    Sketcher.Constraint("Horizontal", 23, 2, 26, 2),
    Sketcher.Constraint("Horizontal", 25, 2, 28, 2),
    Sketcher.Constraint("Horizontal", 27, 2, 30, 2),
    Sketcher.Constraint("Equal", 3, 5),
    Sketcher.Constraint("Equal", 7, 9),
    Sketcher.Constraint("Equal", 11, 13),
    Sketcher.Constraint("Equal", 15, 17),
    Sketcher.Constraint("Equal", 19, 21),
    Sketcher.Constraint("Equal", 23, 25),
    Sketcher.Constraint("Equal", 27, 29),
    Sketcher.Constraint("DistanceX", 1, 1, 1, 2, 40.0),
    Sketcher.Constraint("DistanceY", 0, 2, 0, 1, 4.0),
    Sketcher.Constraint("DistanceY", 0, 2, -1, 1, 162.0),
    Sketcher.Constraint("DistanceX", 1, 2, 4, 2, 49.37),
    Sketcher.Constraint("DistanceX", 5, 2, 8, 2, 49.37),
    Sketcher.Constraint("DistanceX", 9, 2, 12, 2, 49.37),
    Sketcher.Constraint("DistanceX", 13, 2, 16, 2, 49.37),
    Sketcher.Constraint("DistanceX", 17, 2, 20, 2, 49.37),
    Sketcher.Constraint("DistanceX", 21, 2, 24, 2, 49.37),
    Sketcher.Constraint("DistanceX", 25, 2, 28, 2, 49.37),
    Sketcher.Constraint("DistanceX", 0, 2, -1, 1, 332.825),
])
pocket5 = body.newObject("PartDesign::Pocket", "Pocket004")
pocket5.Profile = sketch6
pocket5.Type = "ThroughAll"

sketch7 = body.newObject("Sketcher::SketchObject", "Sketch006")
sketch7.AttachmentSupport = (doc.getObject("XY_Plane"), [""])
sketch7.MapMode = "FlatFace"
sketch7.AttachmentOffset = App.Placement(Vector(0, 0, 1.5), App.Rotation())
add_polygon(sketch7, [(-380, 180), (-380, 20), (380, 20), (380, 180)])
sketch7.addConstraint([
    Sketcher.Constraint("Vertical", 0),
    Sketcher.Constraint("Horizontal", 1),
    Sketcher.Constraint("Vertical", 2),
    Sketcher.Constraint("Horizontal", 3),
    Sketcher.Constraint("DistanceX", 1, 1, 1, 2, 760.0),
    Sketcher.Constraint("DistanceY", 0, 2, 0, 1, 160.0),
    Sketcher.Constraint("DistanceX", 0, 2, -1, 1, 380.0),
    Sketcher.Constraint("DistanceY", -1, 1, 0, 2, 20.0),
])
pocket6 = body.newObject("PartDesign::Pocket", "Pocket005")
pocket6.Profile = sketch7
pocket6.Type = "ThroughAll"

doc.recompute()
